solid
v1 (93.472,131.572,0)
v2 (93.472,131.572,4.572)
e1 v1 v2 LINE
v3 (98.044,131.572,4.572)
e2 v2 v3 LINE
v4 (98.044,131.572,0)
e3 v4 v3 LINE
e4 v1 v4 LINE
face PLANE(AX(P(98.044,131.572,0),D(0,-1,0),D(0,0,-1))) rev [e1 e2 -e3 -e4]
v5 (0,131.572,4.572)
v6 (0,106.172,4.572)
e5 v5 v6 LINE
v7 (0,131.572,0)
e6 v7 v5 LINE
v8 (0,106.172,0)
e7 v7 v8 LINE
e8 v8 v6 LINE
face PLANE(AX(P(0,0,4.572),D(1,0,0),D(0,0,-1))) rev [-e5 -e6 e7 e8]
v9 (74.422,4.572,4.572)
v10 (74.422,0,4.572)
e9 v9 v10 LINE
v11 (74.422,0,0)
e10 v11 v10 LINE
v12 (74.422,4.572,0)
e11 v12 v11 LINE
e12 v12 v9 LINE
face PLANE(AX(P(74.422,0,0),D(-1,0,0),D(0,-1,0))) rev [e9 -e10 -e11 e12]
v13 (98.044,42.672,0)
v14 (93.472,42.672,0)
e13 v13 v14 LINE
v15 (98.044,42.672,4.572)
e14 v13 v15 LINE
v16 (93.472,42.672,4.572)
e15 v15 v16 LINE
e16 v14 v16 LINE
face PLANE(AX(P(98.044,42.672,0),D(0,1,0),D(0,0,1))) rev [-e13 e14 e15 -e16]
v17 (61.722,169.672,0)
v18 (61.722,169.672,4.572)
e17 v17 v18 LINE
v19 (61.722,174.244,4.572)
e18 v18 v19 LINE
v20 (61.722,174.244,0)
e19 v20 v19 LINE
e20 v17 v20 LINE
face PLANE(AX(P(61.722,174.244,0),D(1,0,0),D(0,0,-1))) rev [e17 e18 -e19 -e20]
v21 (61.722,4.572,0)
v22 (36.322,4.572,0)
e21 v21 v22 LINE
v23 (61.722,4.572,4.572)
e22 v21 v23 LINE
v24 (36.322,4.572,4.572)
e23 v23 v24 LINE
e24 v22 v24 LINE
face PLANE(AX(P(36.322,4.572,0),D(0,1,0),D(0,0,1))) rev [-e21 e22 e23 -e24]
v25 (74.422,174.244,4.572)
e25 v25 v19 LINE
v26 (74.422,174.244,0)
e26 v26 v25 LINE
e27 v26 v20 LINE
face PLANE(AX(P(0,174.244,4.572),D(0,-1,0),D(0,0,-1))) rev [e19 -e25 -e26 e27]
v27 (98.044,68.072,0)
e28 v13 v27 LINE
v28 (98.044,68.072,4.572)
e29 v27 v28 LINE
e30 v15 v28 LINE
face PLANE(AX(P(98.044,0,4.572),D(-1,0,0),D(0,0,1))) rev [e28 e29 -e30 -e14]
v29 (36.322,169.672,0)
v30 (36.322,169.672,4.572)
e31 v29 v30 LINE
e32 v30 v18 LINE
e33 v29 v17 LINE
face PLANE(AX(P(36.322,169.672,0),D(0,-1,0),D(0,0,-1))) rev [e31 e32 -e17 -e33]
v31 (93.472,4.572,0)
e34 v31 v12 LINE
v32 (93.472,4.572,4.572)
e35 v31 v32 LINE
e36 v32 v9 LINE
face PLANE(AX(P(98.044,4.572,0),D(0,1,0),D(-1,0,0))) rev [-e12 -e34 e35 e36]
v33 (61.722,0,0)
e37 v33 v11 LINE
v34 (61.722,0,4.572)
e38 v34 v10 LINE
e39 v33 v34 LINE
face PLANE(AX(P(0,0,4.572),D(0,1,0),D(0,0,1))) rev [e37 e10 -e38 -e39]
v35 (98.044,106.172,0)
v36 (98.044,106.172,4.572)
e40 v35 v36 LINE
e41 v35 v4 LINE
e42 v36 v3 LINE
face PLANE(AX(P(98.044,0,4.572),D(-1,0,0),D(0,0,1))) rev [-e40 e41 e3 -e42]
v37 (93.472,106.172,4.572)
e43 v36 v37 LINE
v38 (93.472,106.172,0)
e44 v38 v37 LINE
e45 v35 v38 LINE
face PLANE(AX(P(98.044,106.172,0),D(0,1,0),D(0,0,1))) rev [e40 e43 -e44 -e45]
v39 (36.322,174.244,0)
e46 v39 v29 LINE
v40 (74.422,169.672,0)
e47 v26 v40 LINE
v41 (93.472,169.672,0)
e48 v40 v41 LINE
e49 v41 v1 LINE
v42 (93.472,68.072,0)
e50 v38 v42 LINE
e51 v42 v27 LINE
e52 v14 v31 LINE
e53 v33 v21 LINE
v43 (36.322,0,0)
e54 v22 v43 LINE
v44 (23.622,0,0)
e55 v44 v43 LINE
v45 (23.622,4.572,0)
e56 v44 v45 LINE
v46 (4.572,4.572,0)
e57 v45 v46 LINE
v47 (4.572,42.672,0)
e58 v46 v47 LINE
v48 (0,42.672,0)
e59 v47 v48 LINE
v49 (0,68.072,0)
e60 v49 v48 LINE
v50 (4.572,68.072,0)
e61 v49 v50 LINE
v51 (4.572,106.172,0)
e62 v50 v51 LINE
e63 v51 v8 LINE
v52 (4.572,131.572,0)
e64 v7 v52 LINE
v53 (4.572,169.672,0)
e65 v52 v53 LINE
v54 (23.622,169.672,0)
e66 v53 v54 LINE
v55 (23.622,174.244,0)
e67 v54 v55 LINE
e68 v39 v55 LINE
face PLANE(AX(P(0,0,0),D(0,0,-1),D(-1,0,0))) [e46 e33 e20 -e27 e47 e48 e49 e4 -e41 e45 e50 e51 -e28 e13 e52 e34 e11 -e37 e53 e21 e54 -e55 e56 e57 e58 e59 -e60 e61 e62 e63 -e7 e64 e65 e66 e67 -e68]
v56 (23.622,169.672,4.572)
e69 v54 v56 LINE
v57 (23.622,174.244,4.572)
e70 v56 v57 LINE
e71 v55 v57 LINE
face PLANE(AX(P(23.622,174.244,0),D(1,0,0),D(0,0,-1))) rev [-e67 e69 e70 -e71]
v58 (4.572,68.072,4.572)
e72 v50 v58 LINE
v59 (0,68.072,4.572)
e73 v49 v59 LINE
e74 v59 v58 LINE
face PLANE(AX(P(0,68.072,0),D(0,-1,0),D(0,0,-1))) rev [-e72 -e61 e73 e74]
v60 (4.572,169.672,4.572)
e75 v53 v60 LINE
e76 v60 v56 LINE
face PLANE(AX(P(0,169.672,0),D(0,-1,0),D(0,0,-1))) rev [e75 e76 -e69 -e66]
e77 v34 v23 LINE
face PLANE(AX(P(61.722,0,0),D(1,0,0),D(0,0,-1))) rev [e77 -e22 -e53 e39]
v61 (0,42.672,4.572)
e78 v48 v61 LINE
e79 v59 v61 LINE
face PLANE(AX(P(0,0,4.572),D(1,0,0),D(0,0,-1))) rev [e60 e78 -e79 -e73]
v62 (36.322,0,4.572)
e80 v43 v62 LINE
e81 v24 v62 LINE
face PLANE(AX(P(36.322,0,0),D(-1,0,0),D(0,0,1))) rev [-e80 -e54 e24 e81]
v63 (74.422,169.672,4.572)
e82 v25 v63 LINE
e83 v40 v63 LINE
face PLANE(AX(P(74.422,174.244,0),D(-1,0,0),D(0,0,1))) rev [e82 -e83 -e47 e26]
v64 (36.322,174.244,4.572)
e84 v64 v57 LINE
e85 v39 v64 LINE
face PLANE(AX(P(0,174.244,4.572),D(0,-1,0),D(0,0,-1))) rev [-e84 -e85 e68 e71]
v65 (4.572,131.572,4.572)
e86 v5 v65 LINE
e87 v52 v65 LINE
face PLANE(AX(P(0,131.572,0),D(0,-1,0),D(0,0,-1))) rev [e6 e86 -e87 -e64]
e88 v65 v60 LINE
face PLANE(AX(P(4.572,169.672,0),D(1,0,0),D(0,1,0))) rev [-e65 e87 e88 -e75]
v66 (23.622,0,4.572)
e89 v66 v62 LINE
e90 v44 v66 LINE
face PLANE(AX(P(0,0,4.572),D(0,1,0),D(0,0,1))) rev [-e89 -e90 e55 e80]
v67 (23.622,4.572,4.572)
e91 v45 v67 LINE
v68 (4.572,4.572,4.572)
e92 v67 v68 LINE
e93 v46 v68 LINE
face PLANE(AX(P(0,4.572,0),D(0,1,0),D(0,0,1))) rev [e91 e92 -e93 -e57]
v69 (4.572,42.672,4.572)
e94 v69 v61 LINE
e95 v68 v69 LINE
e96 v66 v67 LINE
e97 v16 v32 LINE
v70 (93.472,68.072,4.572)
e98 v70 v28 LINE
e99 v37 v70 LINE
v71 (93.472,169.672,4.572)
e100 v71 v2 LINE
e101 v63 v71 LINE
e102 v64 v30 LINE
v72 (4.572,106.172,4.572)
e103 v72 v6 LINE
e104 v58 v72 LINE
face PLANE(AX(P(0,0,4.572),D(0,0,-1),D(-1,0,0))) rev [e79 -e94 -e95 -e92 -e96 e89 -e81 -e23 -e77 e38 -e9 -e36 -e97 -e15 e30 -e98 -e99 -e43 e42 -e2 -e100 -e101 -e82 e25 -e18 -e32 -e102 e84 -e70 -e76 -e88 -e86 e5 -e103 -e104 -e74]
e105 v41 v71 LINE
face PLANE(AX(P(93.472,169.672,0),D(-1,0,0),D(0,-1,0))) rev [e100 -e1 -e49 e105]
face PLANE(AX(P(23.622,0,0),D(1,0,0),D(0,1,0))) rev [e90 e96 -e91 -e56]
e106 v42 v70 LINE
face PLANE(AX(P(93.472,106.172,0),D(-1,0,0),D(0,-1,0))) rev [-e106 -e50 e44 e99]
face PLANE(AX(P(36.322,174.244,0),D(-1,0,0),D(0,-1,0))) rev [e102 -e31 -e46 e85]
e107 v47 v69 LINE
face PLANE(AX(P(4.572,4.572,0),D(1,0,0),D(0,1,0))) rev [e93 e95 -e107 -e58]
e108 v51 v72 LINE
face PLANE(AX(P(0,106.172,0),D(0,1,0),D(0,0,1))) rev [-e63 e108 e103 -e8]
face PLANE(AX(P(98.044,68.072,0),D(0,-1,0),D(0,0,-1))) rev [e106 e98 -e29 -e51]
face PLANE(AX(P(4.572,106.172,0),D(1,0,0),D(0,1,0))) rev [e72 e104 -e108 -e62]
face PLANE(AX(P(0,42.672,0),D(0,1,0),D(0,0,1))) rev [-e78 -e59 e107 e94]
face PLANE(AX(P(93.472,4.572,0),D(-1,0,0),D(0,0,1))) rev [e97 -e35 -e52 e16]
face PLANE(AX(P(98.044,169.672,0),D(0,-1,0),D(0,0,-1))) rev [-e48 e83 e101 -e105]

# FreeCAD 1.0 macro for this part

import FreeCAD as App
import Part
import Sketcher
Q = App.Units.Quantity

doc = App.newDocument("Part")
params = doc.addObject("Spreadsheet::Sheet", "Params")
for row, (alias, value) in enumerate([
    ("sketch1_width", "3.86 in"),
    ("sketch1_height", "6.86 in"),
    ("pad1_length", "0.18 in"),
    ("sketch2_width", "1 in"),
    ("sketch2_width2", "0.93 in"),
    ("sketch2_height", "0.18 in"),
    ("pocket1_length", "0.18 in"),
    ("sketch3_height", "1.5 in"),
    ("sketch3_width", "0.18 in"),
    ("pocket2_length", "0.18 in"),
], start=1):
    params.set(f"A{row}", alias)
    params.set(f"B{row}", "=" + value)
    params.setAlias(f"B{row}", alias)

body = doc.addObject("PartDesign::Body", "Body")

sketch1 = doc.addObject("Sketcher::SketchObject", "Sketch")
body.addObject(sketch1)
sketch1.AttachmentSupport = (doc.XY_Plane, [""])
sketch1.MapMode = "FlatFace"
sketch1.addGeometry(Part.LineSegment(App.Vector(0, 174, 0), App.Vector(0, 0, 0)), False)
sketch1.addGeometry(Part.LineSegment(App.Vector(0, 0, 0), App.Vector(98, 0, 0)), False)
sketch1.addGeometry(Part.LineSegment(App.Vector(98, 0, 0), App.Vector(98, 174, 0)), False)
sketch1.addGeometry(Part.LineSegment(App.Vector(98, 174, 0), App.Vector(0, 174, 0)), False)
sketch1.addConstraint(Sketcher.Constraint("Coincident", 0, 2, 1, 1))
sketch1.addConstraint(Sketcher.Constraint("Coincident", 1, 2, 2, 1))
sketch1.addConstraint(Sketcher.Constraint("Coincident", 2, 2, 3, 1))
sketch1.addConstraint(Sketcher.Constraint("Coincident", 3, 2, 0, 1))
sketch1.addConstraint(Sketcher.Constraint("Vertical", 0))
sketch1.addConstraint(Sketcher.Constraint("Horizontal", 1))
sketch1.addConstraint(Sketcher.Constraint("Vertical", 2))
sketch1.addConstraint(Sketcher.Constraint("Horizontal", 3))
sketch1.addConstraint(Sketcher.Constraint("Coincident", 0, 2, -1, 1))
sketch1.addConstraint(Sketcher.Constraint("DistanceX", 1, 1, 1, 2, Q("3.86 in")))
sketch1.addConstraint(Sketcher.Constraint("DistanceY", 0, 2, 0, 1, Q("6.86 in")))
sketch1.setExpression("Constraints[9]", "Params.sketch1_width")
sketch1.setExpression("Constraints[10]", "Params.sketch1_height")
pad1 = doc.addObject("PartDesign::Pad", "Pad")
body.addObject(pad1)
pad1.Profile = sketch1
pad1.setExpression("Length", "Params.pad1_length")

sketch2 = doc.addObject("Sketcher::SketchObject", "Sketch001")
body.addObject(sketch2)
sketch2.AttachmentSupport = (doc.XY_Plane, [""])
sketch2.MapMode = "FlatFace"
sketch2.AttachmentOffset = App.Placement(App.Vector(0, 0, 0.18 * 25.4), App.Rotation())
sketch2.addGeometry(Part.LineSegment(App.Vector(0, 4.6, 0), App.Vector(0, 0, 0)), False)
sketch2.addGeometry(Part.LineSegment(App.Vector(0, 0, 0), App.Vector(23.6, 0, 0)), False)
sketch2.addGeometry(Part.LineSegment(App.Vector(23.6, 0, 0), App.Vector(23.6, 4.6, 0)), False)
sketch2.addGeometry(Part.LineSegment(App.Vector(23.6, 4.6, 0), App.Vector(0, 4.6, 0)), False)
sketch2.addGeometry(Part.LineSegment(App.Vector(36.3, 4.6, 0), App.Vector(36.3, 0, 0)), False)
sketch2.addGeometry(Part.LineSegment(App.Vector(36.3, 0, 0), App.Vector(61.7, 0, 0)), False)
sketch2.addGeometry(Part.LineSegment(App.Vector(61.7, 0, 0), App.Vector(61.7, 4.6, 0)), False)
sketch2.addGeometry(Part.LineSegment(App.Vector(61.7, 4.6, 0), App.Vector(36.3, 4.6, 0)), False)
sketch2.addGeometry(Part.LineSegment(App.Vector(74.4, 4.6, 0), App.Vector(74.4, 0, 0)), False)
sketch2.addGeometry(Part.LineSegment(App.Vector(74.4, 0, 0), App.Vector(98, 0, 0)), False)
sketch2.addGeometry(Part.LineSegment(App.Vector(98, 0, 0), App.Vector(98, 4.6, 0)), False)
sketch2.addGeometry(Part.LineSegment(App.Vector(98, 4.6, 0), App.Vector(74.4, 4.6, 0)), False)
sketch2.addGeometry(Part.LineSegment(App.Vector(0, 174.2, 0), App.Vector(0, 169.7, 0)), False)
sketch2.addGeometry(Part.LineSegment(App.Vector(0, 169.7, 0), App.Vector(23.6, 169.7, 0)), False)
sketch2.addGeometry(Part.LineSegment(App.Vector(23.6, 169.7, 0), App.Vector(23.6, 174.2, 0)), False)
sketch2.addGeometry(Part.LineSegment(App.Vector(23.6, 174.2, 0), App.Vector(0, 174.2, 0)), False)
sketch2.addGeometry(Part.LineSegment(App.Vector(36.3, 174.2, 0), App.Vector(36.3, 169.7, 0)), False)
sketch2.addGeometry(Part.LineSegment(App.Vector(36.3, 169.7, 0), App.Vector(61.7, 169.7, 0)), False)
sketch2.addGeometry(Part.LineSegment(App.Vector(61.7, 169.7, 0), App.Vector(61.7, 174.2, 0)), False)
sketch2.addGeometry(Part.LineSegment(App.Vector(61.7, 174.2, 0), App.Vector(36.3, 174.2, 0)), False)
sketch2.addGeometry(Part.LineSegment(App.Vector(74.4, 174.2, 0), App.Vector(74.4, 169.7, 0)), False)
sketch2.addGeometry(Part.LineSegment(App.Vector(74.4, 169.7, 0), App.Vector(98, 169.7, 0)), False)
sketch2.addGeometry(Part.LineSegment(App.Vector(98, 169.7, 0), App.Vector(98, 174.2, 0)), False)
sketch2.addGeometry(Part.LineSegment(App.Vector(98, 174.2, 0), App.Vector(74.4, 174.2, 0)), False)
sketch2.addConstraint(Sketcher.Constraint("Coincident", 0, 2, 1, 1))
sketch2.addConstraint(Sketcher.Constraint("Coincident", 1, 2, 2, 1))
sketch2.addConstraint(Sketcher.Constraint("Coincident", 2, 2, 3, 1))
sketch2.addConstraint(Sketcher.Constraint("Coincident", 3, 2, 0, 1))
sketch2.addConstraint(Sketcher.Constraint("Coincident", 4, 2, 5, 1))
sketch2.addConstraint(Sketcher.Constraint("Coincident", 5, 2, 6, 1))
sketch2.addConstraint(Sketcher.Constraint("Coincident", 6, 2, 7, 1))
sketch2.addConstraint(Sketcher.Constraint("Coincident", 7, 2, 4, 1))
sketch2.addConstraint(Sketcher.Constraint("Coincident", 8, 2, 9, 1))
sketch2.addConstraint(Sketcher.Constraint("Coincident", 9, 2, 10, 1))
sketch2.addConstraint(Sketcher.Constraint("Coincident", 10, 2, 11, 1))
sketch2.addConstraint(Sketcher.Constraint("Coincident", 11, 2, 8, 1))
sketch2.addConstraint(Sketcher.Constraint("Coincident", 12, 2, 13, 1))
sketch2.addConstraint(Sketcher.Constraint("Coincident", 13, 2, 14, 1))
sketch2.addConstraint(Sketcher.Constraint("Coincident", 14, 2, 15, 1))
sketch2.addConstraint(Sketcher.Constraint("Coincident", 15, 2, 12, 1))
sketch2.addConstraint(Sketcher.Constraint("Coincident", 16, 2, 17, 1))
sketch2.addConstraint(Sketcher.Constraint("Coincident", 17, 2, 18, 1))
sketch2.addConstraint(Sketcher.Constraint("Coincident", 18, 2, 19, 1))
sketch2.addConstraint(Sketcher.Constraint("Coincident", 19, 2, 16, 1))
sketch2.addConstraint(Sketcher.Constraint("Coincident", 20, 2, 21, 1))
sketch2.addConstraint(Sketcher.Constraint("Coincident", 21, 2, 22, 1))
sketch2.addConstraint(Sketcher.Constraint("Coincident", 22, 2, 23, 1))
sketch2.addConstraint(Sketcher.Constraint("Coincident", 23, 2, 20, 1))
sketch2.addConstraint(Sketcher.Constraint("Vertical", 0))
sketch2.addConstraint(Sketcher.Constraint("Horizontal", 1))
sketch2.addConstraint(Sketcher.Constraint("Vertical", 2))
sketch2.addConstraint(Sketcher.Constraint("Horizontal", 3))
sketch2.addConstraint(Sketcher.Constraint("Vertical", 4))
sketch2.addConstraint(Sketcher.Constraint("Horizontal", 5))
sketch2.addConstraint(Sketcher.Constraint("Vertical", 6))
sketch2.addConstraint(Sketcher.Constraint("Horizontal", 7))
sketch2.addConstraint(Sketcher.Constraint("Vertical", 8))
sketch2.addConstraint(Sketcher.Constraint("Horizontal", 9))
sketch2.addConstraint(Sketcher.Constraint("Vertical", 10))
sketch2.addConstraint(Sketcher.Constraint("Horizontal", 11))
sketch2.addConstraint(Sketcher.Constraint("Vertical", 12))
sketch2.addConstraint(Sketcher.Constraint("Horizontal", 13))
sketch2.addConstraint(Sketcher.Constraint("Vertical", 14))
sketch2.addConstraint(Sketcher.Constraint("Horizontal", 15))
sketch2.addConstraint(Sketcher.Constraint("Vertical", 16))
sketch2.addConstraint(Sketcher.Constraint("Horizontal", 17))
sketch2.addConstraint(Sketcher.Constraint("Vertical", 18))
sketch2.addConstraint(Sketcher.Constraint("Horizontal", 19))
sketch2.addConstraint(Sketcher.Constraint("Vertical", 20))
sketch2.addConstraint(Sketcher.Constraint("Horizontal", 21))
sketch2.addConstraint(Sketcher.Constraint("Vertical", 22))
sketch2.addConstraint(Sketcher.Constraint("Horizontal", 23))
sketch2.addConstraint(Sketcher.Constraint("Coincident", 0, 2, -1, 1))
sketch2.addConstraint(Sketcher.Constraint("PointOnObject", 4, 2, -1))
sketch2.addConstraint(Sketcher.Constraint("PointOnObject", 8, 2, -1))
sketch2.addConstraint(Sketcher.Constraint("PointOnObject", 12, 2, -2))
sketch2.addConstraint(Sketcher.Constraint("Horizontal", 3, 2, 6, 2))
sketch2.addConstraint(Sketcher.Constraint("Horizontal", 7, 2, 10, 2))
sketch2.addConstraint(Sketcher.Constraint("Horizontal", 13, 2, 16, 2))
sketch2.addConstraint(Sketcher.Constraint("Horizontal", 15, 2, 18, 2))
sketch2.addConstraint(Sketcher.Constraint("Horizontal", 17, 2, 20, 2))
sketch2.addConstraint(Sketcher.Constraint("Horizontal", 19, 2, 22, 2))
sketch2.addConstraint(Sketcher.Constraint("Vertical", 2, 2, 13, 2))
sketch2.addConstraint(Sketcher.Constraint("Vertical", 7, 2, 16, 2))
sketch2.addConstraint(Sketcher.Constraint("Vertical", 6, 2, 17, 2))
sketch2.addConstraint(Sketcher.Constraint("Vertical", 11, 2, 20, 2))
sketch2.addConstraint(Sketcher.Constraint("Vertical", 10, 2, 21, 2))
sketch2.addConstraint(Sketcher.Constraint("Equal", 3, 9))
sketch2.addConstraint(Sketcher.Constraint("Equal", 10, 12))
sketch2.addConstraint(Sketcher.Constraint("DistanceX", 5, 1, 5, 2, Q("1 in")))
sketch2.addConstraint(Sketcher.Constraint("DistanceX", 1, 2, 8, 2, Q("2 in")))
sketch2.addConstraint(Sketcher.Constraint("DistanceX", 1, 1, 1, 2, Q("0.93 in")))
sketch2.addConstraint(Sketcher.Constraint("DistanceY", 0, 2, 0, 1, Q("0.18 in")))
sketch2.addConstraint(Sketcher.Constraint("DistanceX", 1, 2, 4, 2, Q("0.5 in")))
sketch2.addConstraint(Sketcher.Constraint("DistanceY", 3, 2, 12, 2, Q("6.5 in")))
sketch2.setExpression("Constraints[65]", "Params.sketch2_width")
sketch2.setExpression("Constraints[67]", "Params.sketch2_width2")
sketch2.setExpression("Constraints[68]", "Params.sketch2_height")
pocket1 = doc.addObject("PartDesign::Pocket", "Pocket")
body.addObject(pocket1)
pocket1.Profile = sketch2
pocket1.setExpression("Length", "Params.pocket1_length")

sketch3 = doc.addObject("Sketcher::SketchObject", "Sketch002")
body.addObject(sketch3)
sketch3.AttachmentSupport = (doc.XY_Plane, [""])
sketch3.MapMode = "FlatFace"
sketch3.AttachmentOffset = App.Placement(App.Vector(0, 0, 0.18 * 25.4), App.Rotation())
sketch3.addGeometry(Part.LineSegment(App.Vector(0, 42.7, 0), App.Vector(0, 4.6, 0)), False)
sketch3.addGeometry(Part.LineSegment(App.Vector(0, 4.6, 0), App.Vector(4.6, 4.6, 0)), False)
sketch3.addGeometry(Part.LineSegment(App.Vector(4.6, 4.6, 0), App.Vector(4.6, 42.7, 0)), False)
sketch3.addGeometry(Part.LineSegment(App.Vector(4.6, 42.7, 0), App.Vector(0, 42.7, 0)), False)
sketch3.addGeometry(Part.LineSegment(App.Vector(93.5, 42.7, 0), App.Vector(93.5, 4.6, 0)), False)
sketch3.addGeometry(Part.LineSegment(App.Vector(93.5, 4.6, 0), App.Vector(98, 4.6, 0)), False)
sketch3.addGeometry(Part.LineSegment(App.Vector(98, 4.6, 0), App.Vector(98, 42.7, 0)), False)
sketch3.addGeometry(Part.LineSegment(App.Vector(98, 42.7, 0), App.Vector(93.5, 42.7, 0)), False)
sketch3.addGeometry(Part.LineSegment(App.Vector(0, 106.2, 0), App.Vector(0, 68.1, 0)), False)
sketch3.addGeometry(Part.LineSegment(App.Vector(0, 68.1, 0), App.Vector(4.6, 68.1, 0)), False)
sketch3.addGeometry(Part.LineSegment(App.Vector(4.6, 68.1, 0), App.Vector(4.6, 106.2, 0)), False)
sketch3.addGeometry(Part.LineSegment(App.Vector(4.6, 106.2, 0), App.Vector(0, 106.2, 0)), False)
sketch3.addGeometry(Part.LineSegment(App.Vector(0, 169.7, 0), App.Vector(0, 131.6, 0)), False)
sketch3.addGeometry(Part.LineSegment(App.Vector(0, 131.6, 0), App.Vector(4.6, 131.6, 0)), False)
sketch3.addGeometry(Part.LineSegment(App.Vector(4.6, 131.6, 0), App.Vector(4.6, 169.7, 0)), False)
sketch3.addGeometry(Part.LineSegment(App.Vector(4.6, 169.7, 0), App.Vector(0, 169.7, 0)), False)
sketch3.addGeometry(Part.LineSegment(App.Vector(93.5, 169.7, 0), App.Vector(93.5, 131.6, 0)), False)
sketch3.addGeometry(Part.LineSegment(App.Vector(93.5, 131.6, 0), App.Vector(98, 131.6, 0)), False)
sketch3.addGeometry(Part.LineSegment(App.Vector(98, 131.6, 0), App.Vector(98, 169.7, 0)), False)
sketch3.addGeometry(Part.LineSegment(App.Vector(98, 169.7, 0), App.Vector(93.5, 169.7, 0)), False)
sketch3.addGeometry(Part.LineSegment(App.Vector(93.5, 106.2, 0), App.Vector(93.5, 68.1, 0)), False)
sketch3.addGeometry(Part.LineSegment(App.Vector(93.5, 68.1, 0), App.Vector(98, 68.1, 0)), False)
sketch3.addGeometry(Part.LineSegment(App.Vector(98, 68.1, 0), App.Vector(98, 106.2, 0)), False)
sketch3.addGeometry(Part.LineSegment(App.Vector(98, 106.2, 0), App.Vector(93.5, 106.2, 0)), False)
sketch3.addConstraint(Sketcher.Constraint("Coincident", 0, 2, 1, 1))
sketch3.addConstraint(Sketcher.Constraint("Coincident", 1, 2, 2, 1))
sketch3.addConstraint(Sketcher.Constraint("Coincident", 2, 2, 3, 1))
sketch3.addConstraint(Sketcher.Constraint("Coincident", 3, 2, 0, 1))
sketch3.addConstraint(Sketcher.Constraint("Coincident", 4, 2, 5, 1))
sketch3.addConstraint(Sketcher.Constraint("Coincident", 5, 2, 6, 1))
sketch3.addConstraint(Sketcher.Constraint("Coincident", 6, 2, 7, 1))
sketch3.addConstraint(Sketcher.Constraint("Coincident", 7, 2, 4, 1))
sketch3.addConstraint(Sketcher.Constraint("Coincident", 8, 2, 9, 1))
sketch3.addConstraint(Sketcher.Constraint("Coincident", 9, 2, 10, 1))
sketch3.addConstraint(Sketcher.Constraint("Coincident", 10, 2, 11, 1))
sketch3.addConstraint(Sketcher.Constraint("Coincident", 11, 2, 8, 1))
sketch3.addConstraint(Sketcher.Constraint("Coincident", 12, 2, 13, 1))
sketch3.addConstraint(Sketcher.Constraint("Coincident", 13, 2, 14, 1))
sketch3.addConstraint(Sketcher.Constraint("Coincident", 14, 2, 15, 1))
sketch3.addConstraint(Sketcher.Constraint("Coincident", 15, 2, 12, 1))
sketch3.addConstraint(Sketcher.Constraint("Coincident", 16, 2, 17, 1))
sketch3.addConstraint(Sketcher.Constraint("Coincident", 17, 2, 18, 1))
sketch3.addConstraint(Sketcher.Constraint("Coincident", 18, 2, 19, 1))
sketch3.addConstraint(Sketcher.Constraint("Coincident", 19, 2, 16, 1))
sketch3.addConstraint(Sketcher.Constraint("Coincident", 20, 2, 21, 1))
sketch3.addConstraint(Sketcher.Constraint("Coincident", 21, 2, 22, 1))
sketch3.addConstraint(Sketcher.Constraint("Coincident", 22, 2, 23, 1))
sketch3.addConstraint(Sketcher.Constraint("Coincident", 23, 2, 20, 1))
sketch3.addConstraint(Sketcher.Constraint("Vertical", 0))
sketch3.addConstraint(Sketcher.Constraint("Horizontal", 1))
sketch3.addConstraint(Sketcher.Constraint("Vertical", 2))
sketch3.addConstraint(Sketcher.Constraint("Horizontal", 3))
sketch3.addConstraint(Sketcher.Constraint("Vertical", 4))
sketch3.addConstraint(Sketcher.Constraint("Horizontal", 5))
sketch3.addConstraint(Sketcher.Constraint("Vertical", 6))
sketch3.addConstraint(Sketcher.Constraint("Horizontal", 7))
sketch3.addConstraint(Sketcher.Constraint("Vertical", 8))
sketch3.addConstraint(Sketcher.Constraint("Horizontal", 9))
sketch3.addConstraint(Sketcher.Constraint("Vertical", 10))
sketch3.addConstraint(Sketcher.Constraint("Horizontal", 11))
sketch3.addConstraint(Sketcher.Constraint("Vertical", 12))
sketch3.addConstraint(Sketcher.Constraint("Horizontal", 13))
sketch3.addConstraint(Sketcher.Constraint("Vertical", 14))
sketch3.addConstraint(Sketcher.Constraint("Horizontal", 15))
sketch3.addConstraint(Sketcher.Constraint("Vertical", 16))
sketch3.addConstraint(Sketcher.Constraint("Horizontal", 17))
sketch3.addConstraint(Sketcher.Constraint("Vertical", 18))
sketch3.addConstraint(Sketcher.Constraint("Horizontal", 19))
sketch3.addConstraint(Sketcher.Constraint("Vertical", 20))
sketch3.addConstraint(Sketcher.Constraint("Horizontal", 21))
sketch3.addConstraint(Sketcher.Constraint("Vertical", 22))
sketch3.addConstraint(Sketcher.Constraint("Horizontal", 23))
sketch3.addConstraint(Sketcher.Constraint("PointOnObject", 0, 2, -2))
sketch3.addConstraint(Sketcher.Constraint("PointOnObject", 8, 2, -2))
sketch3.addConstraint(Sketcher.Constraint("PointOnObject", 12, 2, -2))
sketch3.addConstraint(Sketcher.Constraint("Horizontal", 1, 2, 4, 2))
sketch3.addConstraint(Sketcher.Constraint("Horizontal", 3, 2, 6, 2))
sketch3.addConstraint(Sketcher.Constraint("Horizontal", 13, 2, 16, 2))
sketch3.addConstraint(Sketcher.Constraint("Horizontal", 15, 2, 18, 2))
sketch3.addConstraint(Sketcher.Constraint("Horizontal", 9, 2, 20, 2))
sketch3.addConstraint(Sketcher.Constraint("Horizontal", 11, 2, 22, 2))
sketch3.addConstraint(Sketcher.Constraint("Vertical", 2, 2, 9, 2))
sketch3.addConstraint(Sketcher.Constraint("Vertical", 10, 2, 13, 2))
sketch3.addConstraint(Sketcher.Constraint("Vertical", 7, 2, 16, 2))
sketch3.addConstraint(Sketcher.Constraint("Vertical", 6, 2, 17, 2))
sketch3.addConstraint(Sketcher.Constraint("Vertical", 19, 2, 20, 2))
sketch3.addConstraint(Sketcher.Constraint("Vertical", 18, 2, 21, 2))
sketch3.addConstraint(Sketcher.Constraint("Equal", 3, 5))
sketch3.addConstraint(Sketcher.Constraint("Equal", 6, 8))
sketch3.addConstraint(Sketcher.Constraint("Equal", 10, 12))
sketch3.addConstraint(Sketcher.Constraint("DistanceY", 0, 2, 0, 1, Q("1.5 in")))
sketch3.addConstraint(Sketcher.Constraint("DistanceY", 3, 2, 8, 2, Q("1 in")))
sketch3.addConstraint(Sketcher.Constraint("DistanceY", 11, 2, 12, 2, Q("1 in")))
sketch3.addConstraint(Sketcher.Constraint("DistanceX", 1, 1, 1, 2, Q("0.18 in")))
sketch3.addConstraint(Sketcher.Constraint("DistanceX", 1, 2, 4, 2, Q("3.5 in")))
sketch3.addConstraint(Sketcher.Constraint("DistanceY", -1, 1, 0, 2, Q("0.18 in")))
sketch3.setExpression("Constraints[66]", "Params.sketch3_height")
sketch3.setExpression("Constraints[69]", "Params.sketch3_width")
pocket2 = doc.addObject("PartDesign::Pocket", "Pocket001")
body.addObject(pocket2)
pocket2.Profile = sketch3
pocket2.setExpression("Length", "Params.pocket2_length")

doc.recompute()
